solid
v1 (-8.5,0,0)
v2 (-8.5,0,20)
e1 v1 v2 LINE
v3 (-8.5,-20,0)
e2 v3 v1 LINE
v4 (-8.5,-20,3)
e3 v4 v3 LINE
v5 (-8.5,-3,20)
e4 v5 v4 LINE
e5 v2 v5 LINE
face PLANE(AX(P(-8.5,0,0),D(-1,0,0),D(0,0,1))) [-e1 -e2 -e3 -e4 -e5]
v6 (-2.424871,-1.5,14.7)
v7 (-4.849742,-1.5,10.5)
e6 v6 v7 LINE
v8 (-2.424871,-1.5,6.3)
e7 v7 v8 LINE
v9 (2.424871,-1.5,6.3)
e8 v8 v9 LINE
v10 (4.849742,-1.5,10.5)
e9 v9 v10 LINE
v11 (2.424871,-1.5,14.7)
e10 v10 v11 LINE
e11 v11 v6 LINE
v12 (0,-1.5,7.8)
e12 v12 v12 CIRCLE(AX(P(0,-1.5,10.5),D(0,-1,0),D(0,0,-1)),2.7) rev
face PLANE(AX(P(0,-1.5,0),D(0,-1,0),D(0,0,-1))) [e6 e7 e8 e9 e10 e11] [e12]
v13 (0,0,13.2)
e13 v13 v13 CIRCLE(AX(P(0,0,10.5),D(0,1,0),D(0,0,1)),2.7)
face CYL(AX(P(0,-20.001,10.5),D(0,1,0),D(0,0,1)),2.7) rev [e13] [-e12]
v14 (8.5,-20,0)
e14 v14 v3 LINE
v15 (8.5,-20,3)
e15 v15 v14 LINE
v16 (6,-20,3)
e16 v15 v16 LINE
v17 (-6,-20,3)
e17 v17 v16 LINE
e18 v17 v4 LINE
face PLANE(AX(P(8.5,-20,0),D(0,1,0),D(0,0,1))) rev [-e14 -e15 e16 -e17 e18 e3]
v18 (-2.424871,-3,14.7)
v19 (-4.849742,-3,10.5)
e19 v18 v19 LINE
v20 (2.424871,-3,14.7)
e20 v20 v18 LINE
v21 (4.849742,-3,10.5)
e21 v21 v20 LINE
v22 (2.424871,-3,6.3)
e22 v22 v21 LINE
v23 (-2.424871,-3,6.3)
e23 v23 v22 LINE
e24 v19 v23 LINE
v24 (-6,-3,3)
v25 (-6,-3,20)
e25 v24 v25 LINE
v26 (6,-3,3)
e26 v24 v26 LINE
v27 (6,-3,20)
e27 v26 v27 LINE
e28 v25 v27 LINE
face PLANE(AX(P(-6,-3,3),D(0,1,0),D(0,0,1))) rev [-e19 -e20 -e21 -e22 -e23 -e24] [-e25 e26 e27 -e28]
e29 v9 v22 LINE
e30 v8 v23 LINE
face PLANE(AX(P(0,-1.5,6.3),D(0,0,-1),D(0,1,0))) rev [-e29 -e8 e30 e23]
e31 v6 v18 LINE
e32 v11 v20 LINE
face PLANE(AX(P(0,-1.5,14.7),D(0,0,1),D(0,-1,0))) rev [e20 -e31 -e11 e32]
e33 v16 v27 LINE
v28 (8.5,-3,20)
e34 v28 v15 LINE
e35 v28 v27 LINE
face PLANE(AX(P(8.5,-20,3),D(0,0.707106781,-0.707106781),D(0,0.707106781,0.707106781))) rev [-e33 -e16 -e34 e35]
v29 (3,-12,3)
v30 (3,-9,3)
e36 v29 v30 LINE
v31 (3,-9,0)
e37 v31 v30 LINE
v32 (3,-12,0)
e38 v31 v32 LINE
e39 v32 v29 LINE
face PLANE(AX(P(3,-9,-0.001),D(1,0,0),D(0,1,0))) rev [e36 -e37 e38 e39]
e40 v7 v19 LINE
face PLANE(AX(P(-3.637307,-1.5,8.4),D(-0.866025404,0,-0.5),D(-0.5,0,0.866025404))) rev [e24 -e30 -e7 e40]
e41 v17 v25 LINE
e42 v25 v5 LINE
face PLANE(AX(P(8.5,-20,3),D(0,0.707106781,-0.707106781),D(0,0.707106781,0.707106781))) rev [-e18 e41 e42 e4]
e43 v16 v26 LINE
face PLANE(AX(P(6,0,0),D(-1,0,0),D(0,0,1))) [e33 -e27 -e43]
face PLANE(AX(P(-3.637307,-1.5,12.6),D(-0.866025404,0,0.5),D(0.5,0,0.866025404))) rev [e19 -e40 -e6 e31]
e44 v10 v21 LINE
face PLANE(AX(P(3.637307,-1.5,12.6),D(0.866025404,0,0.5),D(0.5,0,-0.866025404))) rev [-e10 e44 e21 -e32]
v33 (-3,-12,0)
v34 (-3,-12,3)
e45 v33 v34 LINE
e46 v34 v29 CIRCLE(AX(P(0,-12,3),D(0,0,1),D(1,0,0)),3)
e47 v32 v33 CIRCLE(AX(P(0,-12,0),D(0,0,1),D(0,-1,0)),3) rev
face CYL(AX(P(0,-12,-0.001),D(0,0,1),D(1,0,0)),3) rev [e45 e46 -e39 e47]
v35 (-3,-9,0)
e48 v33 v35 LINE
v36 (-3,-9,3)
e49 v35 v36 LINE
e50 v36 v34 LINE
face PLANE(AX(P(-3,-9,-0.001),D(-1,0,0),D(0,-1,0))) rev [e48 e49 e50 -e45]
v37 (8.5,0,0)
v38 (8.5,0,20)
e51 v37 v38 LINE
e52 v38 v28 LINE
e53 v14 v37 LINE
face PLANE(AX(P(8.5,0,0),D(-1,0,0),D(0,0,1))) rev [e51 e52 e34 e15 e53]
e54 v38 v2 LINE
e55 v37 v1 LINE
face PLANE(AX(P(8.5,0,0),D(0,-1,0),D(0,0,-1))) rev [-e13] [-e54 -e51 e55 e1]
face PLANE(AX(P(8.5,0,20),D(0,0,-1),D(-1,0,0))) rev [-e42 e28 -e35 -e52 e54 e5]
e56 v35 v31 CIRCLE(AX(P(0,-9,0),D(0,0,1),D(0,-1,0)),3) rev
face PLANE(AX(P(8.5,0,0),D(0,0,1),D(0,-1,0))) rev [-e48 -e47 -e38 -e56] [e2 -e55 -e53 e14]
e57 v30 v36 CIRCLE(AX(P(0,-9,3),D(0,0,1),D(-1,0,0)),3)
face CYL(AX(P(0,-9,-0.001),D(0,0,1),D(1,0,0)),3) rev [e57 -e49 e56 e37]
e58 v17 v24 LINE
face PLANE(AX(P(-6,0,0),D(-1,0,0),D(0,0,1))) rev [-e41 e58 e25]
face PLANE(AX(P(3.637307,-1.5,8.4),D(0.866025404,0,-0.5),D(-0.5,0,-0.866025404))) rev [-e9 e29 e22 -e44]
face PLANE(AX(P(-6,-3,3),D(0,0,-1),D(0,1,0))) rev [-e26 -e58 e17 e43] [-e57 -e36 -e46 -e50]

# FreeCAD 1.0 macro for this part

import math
import FreeCAD as App
import Part
import Sketcher
from FreeCAD import Vector
Q = App.Units.Quantity

doc = App.newDocument("Part")
body = doc.addObject("PartDesign::Body", "Body")

# Sketch on YZ plane
sketch1 = doc.addObject("Sketcher::SketchObject", "Sketch")
body.addObject(sketch1)
sketch1.AttachmentSupport = (doc.YZ_Plane, [""])
sketch1.MapMode = "FlatFace"
sketch1.addGeometry([
    Part.LineSegment(Vector(0, 0, 0), Vector(0, 20, 0)),  # 0
    Part.LineSegment(Vector(0, 20, 0), Vector(-3, 20, 0)),  # 1
    Part.LineSegment(Vector(-3, 20, 0), Vector(-20, 3, 0)),  # 2
    Part.LineSegment(Vector(-20, 3, 0), Vector(-20, 0, 0)),  # 3
    Part.LineSegment(Vector(-20, 0, 0), Vector(0, 0, 0)),  # 4
], False)
sketch1.addConstraint([
    Sketcher.Constraint("Coincident", 0, 2, 1, 1),
    Sketcher.Constraint("Coincident", 1, 2, 2, 1),
    Sketcher.Constraint("Coincident", 2, 2, 3, 1),
    Sketcher.Constraint("Coincident", 3, 2, 4, 1),
    Sketcher.Constraint("Coincident", 4, 2, 0, 1),
    Sketcher.Constraint("Vertical", 0),
    Sketcher.Constraint("Horizontal", 1),
    Sketcher.Constraint("Vertical", 3),
    Sketcher.Constraint("Horizontal", 4),
    Sketcher.Constraint("Coincident", 4, 2, -1, 1),
    Sketcher.Constraint("Equal", 4, 0),
    Sketcher.Constraint("Equal", 1, 3),
    Sketcher.Constraint("DistanceX", 1, 2, 1, 1, 3.0),
    Sketcher.Constraint("DistanceX", 4, 1, 4, 2, 20.0),
])
pad1 = doc.addObject("PartDesign::Pad", "Pad")
body.addObject(pad1)
pad1.Profile = sketch1
pad1.Length = 17
pad1.Midplane = True

# Sketch on YZ plane
sketch2 = doc.addObject("Sketcher::SketchObject", "Sketch001")
body.addObject(sketch2)
sketch2.AttachmentSupport = (doc.YZ_Plane, [""])
sketch2.MapMode = "FlatFace"
sketch2.addGeometry([
    Part.LineSegment(Vector(-3, 20, 0), Vector(-20, 20, 0)),
    Part.LineSegment(Vector(-20, 20, 0), Vector(-20, 3, 0)),
    Part.LineSegment(Vector(-20, 3, 0), Vector(-3, 3, 0)),
    Part.LineSegment(Vector(-3, 3, 0), Vector(-3, 20, 0)),
], False)
sketch2.addConstraint([
    Sketcher.Constraint("Coincident", 0, 2, 1, 1),
    Sketcher.Constraint("Coincident", 1, 2, 2, 1),
    Sketcher.Constraint("Coincident", 2, 2, 3, 1),
    Sketcher.Constraint("Coincident", 3, 2, 0, 1),
    Sketcher.Constraint("Horizontal", 0),
    Sketcher.Constraint("Vertical", 1),
    Sketcher.Constraint("Horizontal", 2),
    Sketcher.Constraint("Vertical", 3),
    Sketcher.Constraint("Equal", 2, 1),
    Sketcher.Constraint("DistanceX", 0, 2, 0, 1, 17.0),
    Sketcher.Constraint("DistanceX", 0, 2, -1, 1, 20.0),
    Sketcher.Constraint("DistanceY", -1, 1, 0, 2, 20.0),
])
pocket1 = doc.addObject("PartDesign::Pocket", "Pocket")
body.addObject(pocket1)
pocket1.Profile = sketch2
pocket1.Length = 12
pocket1.Midplane = True

# Sketch on XY plane
sketch3 = doc.addObject("Sketcher::SketchObject", "Sketch002")
body.addObject(sketch3)
sketch3.AttachmentSupport = (doc.XY_Plane, [""])
sketch3.MapMode = "FlatFace"
sketch3.AttachmentOffset = App.Placement(Vector(0, 0, 3), App.Rotation())
sketch3.addGeometry([
    Part.LineSegment(Vector(-3, -9, 0), Vector(-3, -12, 0)),
    Part.ArcOfCircle(Part.Circle(Vector(0, -12, 0), Vector(0, 0, 1), 3), math.radians(180), math.radians(360)),
    Part.LineSegment(Vector(3, -12, 0), Vector(3, -9, 0)),
    Part.ArcOfCircle(Part.Circle(Vector(0, -9, 0), Vector(0, 0, 1), 3), math.radians(0), math.radians(180)),
], False)
sketch3.addConstraint([
    Sketcher.Constraint("Tangent", 0, 2, 1, 1),
    Sketcher.Constraint("Tangent", 1, 2, 2, 1),
    Sketcher.Constraint("Tangent", 2, 2, 3, 1),
    Sketcher.Constraint("Tangent", 3, 2, 0, 1),
    Sketcher.Constraint("Vertical", 0),
    Sketcher.Constraint("Vertical", 2),
    Sketcher.Constraint("PointOnObject", 1, 3, -2),
    Sketcher.Constraint("Radius", 1, 3.0),
    Sketcher.Constraint("DistanceY", 0, 2, 0, 1, 3.0),
    Sketcher.Constraint("DistanceY", 1, 3, -1, 1, 12.0),
])
pocket2 = doc.addObject("PartDesign::Pocket", "Pocket001")
body.addObject(pocket2)
pocket2.Profile = sketch3
pocket2.Type = "UpToFirst"

# Sketch on XZ plane
sketch4 = doc.addObject("Sketcher::SketchObject", "Sketch003")
body.addObject(sketch4)
sketch4.AttachmentSupport = (doc.XZ_Plane, [""])
sketch4.MapMode = "FlatFace"
sketch4.addGeometry(Part.Circle(Vector(0, 10.5, 0), Vector(0, 0, 1), 2.7), False)
sketch4.addConstraint([
    Sketcher.Constraint("PointOnObject", 0, 3, -2),
    Sketcher.Constraint("Diameter", 0, 5.4),
    Sketcher.Constraint("DistanceY", -1, 1, 0, 3, 10.5),
])
pocket3 = doc.addObject("PartDesign::Pocket", "Pocket002")
body.addObject(pocket3)
pocket3.Profile = sketch4
pocket3.Type = "UpToFirst"
pocket3.Reversed = True

# Sketch on XZ plane
sketch5 = doc.addObject("Sketcher::SketchObject", "Sketch004")
body.addObject(sketch5)
sketch5.AttachmentSupport = (doc.XZ_Plane, [""])
sketch5.MapMode = "FlatFace"
sketch5.AttachmentOffset = App.Placement(Vector(0, 0, 3), App.Rotation())
sketch5.addGeometry([
    Part.LineSegment(Vector(-2.4, 14.7, 0), Vector(-4.8, 10.5, 0)),  # 0
    Part.LineSegment(Vector(-4.8, 10.5, 0), Vector(-2.4, 6.3, 0)),  # 1
    Part.LineSegment(Vector(-2.4, 6.3, 0), Vector(2.4, 6.3, 0)),  # 2
    Part.LineSegment(Vector(2.4, 6.3, 0), Vector(4.8, 10.5, 0)),  # 3
    Part.LineSegment(Vector(4.8, 10.5, 0), Vector(2.4, 14.7, 0)),  # 4
    Part.LineSegment(Vector(2.4, 14.7, 0), Vector(-2.4, 14.7, 0)),  # 5
], False)
sketch5.addConstraint([
    Sketcher.Constraint("Coincident", 0, 2, 1, 1),
    Sketcher.Constraint("Coincident", 1, 2, 2, 1),
    Sketcher.Constraint("Coincident", 2, 2, 3, 1),
    Sketcher.Constraint("Coincident", 3, 2, 4, 1),
    Sketcher.Constraint("Coincident", 4, 2, 5, 1),
    Sketcher.Constraint("Coincident", 5, 2, 0, 1),
    Sketcher.Constraint("Horizontal", 2),
    Sketcher.Constraint("Horizontal", 5),
    Sketcher.Constraint("Symmetric", 0, 2, 3, 2, -2),
    Sketcher.Constraint("Parallel", 0, 3),
    Sketcher.Constraint("Parallel", 1, 4),
    Sketcher.Constraint("Vertical", 2, 2, 4, 2),
    Sketcher.Constraint("Vertical", 1, 2, 5, 2),
    Sketcher.Constraint("Angle", 0, Q("-120 deg")),
    Sketcher.Constraint("DistanceY", -1, 1, 0, 2, 10.5),
    Sketcher.Constraint("DistanceY", -1, 1, 1, 2, 6.3),
    Sketcher.Constraint("DistanceX", 2, 1, 2, 2, 4.849742),
])
pocket4 = doc.addObject("PartDesign::Pocket", "Pocket003")
body.addObject(pocket4)
pocket4.Profile = sketch5
pocket4.Length = 1.5

doc.recompute()
